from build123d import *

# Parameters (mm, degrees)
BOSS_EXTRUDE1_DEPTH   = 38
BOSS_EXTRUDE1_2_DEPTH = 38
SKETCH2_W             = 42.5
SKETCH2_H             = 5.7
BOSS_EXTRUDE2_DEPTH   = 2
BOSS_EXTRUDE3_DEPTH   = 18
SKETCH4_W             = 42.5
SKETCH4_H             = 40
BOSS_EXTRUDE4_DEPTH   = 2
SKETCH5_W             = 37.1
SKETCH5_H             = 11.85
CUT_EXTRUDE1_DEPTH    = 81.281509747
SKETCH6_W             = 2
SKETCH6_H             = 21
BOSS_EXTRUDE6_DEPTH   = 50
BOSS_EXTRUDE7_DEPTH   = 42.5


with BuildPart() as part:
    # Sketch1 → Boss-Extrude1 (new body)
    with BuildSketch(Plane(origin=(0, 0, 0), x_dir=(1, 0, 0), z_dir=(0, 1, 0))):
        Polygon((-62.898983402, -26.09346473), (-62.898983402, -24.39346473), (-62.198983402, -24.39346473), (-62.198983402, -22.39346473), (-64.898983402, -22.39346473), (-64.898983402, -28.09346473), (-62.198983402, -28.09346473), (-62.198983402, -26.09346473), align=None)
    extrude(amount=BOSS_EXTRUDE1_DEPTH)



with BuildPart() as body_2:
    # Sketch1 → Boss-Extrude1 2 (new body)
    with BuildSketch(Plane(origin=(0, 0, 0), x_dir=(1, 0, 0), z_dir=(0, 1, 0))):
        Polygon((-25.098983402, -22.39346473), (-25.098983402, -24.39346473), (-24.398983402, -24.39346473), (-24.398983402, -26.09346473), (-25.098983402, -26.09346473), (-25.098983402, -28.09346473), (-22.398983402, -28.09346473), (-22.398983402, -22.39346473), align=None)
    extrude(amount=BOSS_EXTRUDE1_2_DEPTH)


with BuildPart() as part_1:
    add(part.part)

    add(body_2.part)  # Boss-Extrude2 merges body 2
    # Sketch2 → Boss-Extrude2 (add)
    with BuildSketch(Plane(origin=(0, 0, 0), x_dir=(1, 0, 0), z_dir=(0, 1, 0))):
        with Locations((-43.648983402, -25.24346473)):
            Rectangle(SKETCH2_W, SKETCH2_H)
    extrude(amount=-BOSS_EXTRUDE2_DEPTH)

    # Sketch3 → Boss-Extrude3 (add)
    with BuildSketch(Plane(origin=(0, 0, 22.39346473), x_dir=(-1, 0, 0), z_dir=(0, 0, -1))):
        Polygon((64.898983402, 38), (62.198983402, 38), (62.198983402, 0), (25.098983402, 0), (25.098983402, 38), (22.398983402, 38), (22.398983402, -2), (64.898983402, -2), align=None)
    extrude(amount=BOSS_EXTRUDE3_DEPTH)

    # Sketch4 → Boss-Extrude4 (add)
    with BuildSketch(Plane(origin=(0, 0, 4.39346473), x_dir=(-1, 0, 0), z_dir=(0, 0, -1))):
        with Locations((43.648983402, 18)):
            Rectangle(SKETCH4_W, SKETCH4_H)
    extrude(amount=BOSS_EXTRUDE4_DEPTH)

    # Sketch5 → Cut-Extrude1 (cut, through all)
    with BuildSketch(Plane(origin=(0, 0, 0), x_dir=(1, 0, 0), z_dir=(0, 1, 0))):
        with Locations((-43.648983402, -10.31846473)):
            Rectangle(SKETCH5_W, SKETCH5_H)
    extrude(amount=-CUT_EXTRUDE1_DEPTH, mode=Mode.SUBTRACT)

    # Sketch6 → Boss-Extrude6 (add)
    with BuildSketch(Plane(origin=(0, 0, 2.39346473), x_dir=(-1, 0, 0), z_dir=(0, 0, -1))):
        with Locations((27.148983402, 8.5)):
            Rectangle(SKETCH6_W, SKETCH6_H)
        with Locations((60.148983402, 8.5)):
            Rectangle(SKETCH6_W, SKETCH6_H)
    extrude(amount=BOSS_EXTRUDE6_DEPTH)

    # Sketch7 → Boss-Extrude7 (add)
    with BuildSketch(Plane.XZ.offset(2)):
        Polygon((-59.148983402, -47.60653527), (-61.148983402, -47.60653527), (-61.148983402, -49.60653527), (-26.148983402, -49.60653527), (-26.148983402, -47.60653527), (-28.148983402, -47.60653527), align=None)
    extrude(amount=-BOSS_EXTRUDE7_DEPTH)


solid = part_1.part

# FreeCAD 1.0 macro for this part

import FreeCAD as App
import Part
import Sketcher
from FreeCAD import Vector


def add_polygon(sketch, points):
    """Adds a closed chain of lines whose ends are joined by coincident constraints."""
    first, n = sketch.GeometryCount, len(points)
    for a, b in zip(points, points[1:] + points[:1]):
        sketch.addGeometry(Part.LineSegment(App.Vector(*a, 0), App.Vector(*b, 0)), False)
    for i in range(n):
        sketch.addConstraint(Sketcher.Constraint("Coincident", first + i, 2, first + (i + 1) % n, 1))

doc = App.newDocument("Part")
body = doc.addObject("PartDesign::Body", "Body")

# Sketch on XZ plane
sketch1 = body.newObject("Sketcher::SketchObject", "Sketch")
sketch1.AttachmentSupport = (doc.getObject("XZ_Plane"), [""])
sketch1.MapMode = "FlatFace"
add_polygon(sketch1, [(-62.9, 26.1), (-62.9, 24.4), (-62.2, 24.4), (-62.2, 22.4), (-64.9, 22.4), (-64.9, 28.1), (-62.2, 28.1), (-62.2, 26.1)])  # lines 0-7
sketch1.addConstraint([
    Sketcher.Constraint("Vertical", 0),
    Sketcher.Constraint("Horizontal", 1),
    Sketcher.Constraint("Vertical", 2),
    Sketcher.Constraint("Horizontal", 3),
    Sketcher.Constraint("Vertical", 4),
    Sketcher.Constraint("Horizontal", 5),
    Sketcher.Constraint("Vertical", 6),
    Sketcher.Constraint("Horizontal", 7),
    Sketcher.Constraint("Vertical", 2, 2, 5, 2),
    Sketcher.Constraint("Equal", 2, 6),
    Sketcher.Constraint("DistanceY", 2, 2, 2, 1, 2.0),
    Sketcher.Constraint("DistanceX", 1, 1, 1, 2, 0.7),
    Sketcher.Constraint("DistanceX", 3, 2, 3, 1, 2.7),
    Sketcher.Constraint("DistanceY", 0, 2, 0, 1, 1.7),
    Sketcher.Constraint("DistanceX", 0, 2, -1, 1, 62.898983),
    Sketcher.Constraint("DistanceY", -1, 1, 0, 2, 24.393465),
])
pad1 = body.newObject("PartDesign::Pad", "Pad")
pad1.Profile = sketch1
pad1.Length = 38
pad1.Reversed = True
body2 = doc.addObject("PartDesign::Body", "Body001")

# Sketch on XZ plane
sketch2 = body2.newObject("Sketcher::SketchObject", "Sketch001")
sketch2.AttachmentSupport = (doc.getObject("XZ_Plane001"), [""])
sketch2.MapMode = "FlatFace"
add_polygon(sketch2, [(-25.1, 22.4), (-25.1, 24.4), (-24.4, 24.4), (-24.4, 26.1), (-25.1, 26.1), (-25.1, 28.1), (-22.4, 28.1), (-22.4, 22.4)])  # lines 0-7
sketch2.addConstraint([
    Sketcher.Constraint("Vertical", 0),
    Sketcher.Constraint("Horizontal", 1),
    Sketcher.Constraint("Vertical", 2),
    Sketcher.Constraint("Horizontal", 3),
    Sketcher.Constraint("Vertical", 4),
    Sketcher.Constraint("Horizontal", 5),
    Sketcher.Constraint("Vertical", 6),
    Sketcher.Constraint("Horizontal", 7),
    Sketcher.Constraint("Vertical", 0, 2, 3, 2),
    Sketcher.Constraint("Equal", 0, 4),
    Sketcher.Constraint("DistanceY", 0, 1, 0, 2, 2.0),
    Sketcher.Constraint("DistanceX", 1, 1, 1, 2, 0.7),
    Sketcher.Constraint("DistanceX", 5, 1, 5, 2, 2.7),
    Sketcher.Constraint("DistanceY", 2, 1, 2, 2, 1.7),
    Sketcher.Constraint("DistanceX", 0, 2, -1, 1, 25.098983),
    Sketcher.Constraint("DistanceY", -1, 1, 0, 2, 24.393465),
])
pad2 = body2.newObject("PartDesign::Pad", "Pad001")
pad2.Profile = sketch2
pad2.Length = 38
pad2.Reversed = True
body.AllowCompound = True
doc.recompute()

boolean = body.newObject("PartDesign::Boolean", "Boolean")
boolean.Type = "Fuse"
boolean.addObjects([body2])

# Sketch on XZ plane
sketch3 = body.newObject("Sketcher::SketchObject", "Sketch002")
sketch3.AttachmentSupport = (doc.getObject("XZ_Plane"), [""])
sketch3.MapMode = "FlatFace"
add_polygon(sketch3, [(-65, 22), (-65, 28), (-22, 28), (-22, 22)])  # lines 0-3
sketch3.addConstraint([
    Sketcher.Constraint("Vertical", 0),
    Sketcher.Constraint("Horizontal", 1),
    Sketcher.Constraint("Vertical", 2),
    Sketcher.Constraint("Horizontal", 3),
    Sketcher.Constraint("DistanceX", 1, 1, 1, 2, 42.5),
    Sketcher.Constraint("DistanceY", 0, 1, 0, 2, 5.7),
    Sketcher.Constraint("DistanceX", 0, 2, -1, 1, 64.898983),
    Sketcher.Constraint("DistanceY", -1, 1, 0, 2, 28.093465),
])
pad3 = body.newObject("PartDesign::Pad", "Pad002")
pad3.Profile = sketch3
pad3.Length = 2

# Sketch on XY plane
sketch4 = body.newObject("Sketcher::SketchObject", "Sketch003")
sketch4.AttachmentSupport = (doc.getObject("XY_Plane"), [""])
sketch4.MapMode = "FlatFace"
sketch4.AttachmentOffset = App.Placement(Vector(0, 0, 22.393465), App.Rotation())
add_polygon(sketch4, [(-64.9, 38), (-62.2, 38), (-62.2, 0), (-25.1, 0), (-25.1, 38), (-22.4, 38), (-22.4, -2), (-64.9, -2)])  # lines 0-7
sketch4.addConstraint([
    Sketcher.Constraint("Horizontal", 0),
    Sketcher.Constraint("Vertical", 1),
    Sketcher.Constraint("Horizontal", 2),
    Sketcher.Constraint("Vertical", 3),
    Sketcher.Constraint("Horizontal", 4),
    Sketcher.Constraint("Vertical", 5),
    Sketcher.Constraint("Horizontal", 6),
    Sketcher.Constraint("Vertical", 7),
    Sketcher.Constraint("PointOnObject", 1, 2, -1),
    Sketcher.Constraint("Horizontal", 0, 2, 3, 2),
    Sketcher.Constraint("Equal", 0, 4),
    Sketcher.Constraint("DistanceY", 1, 2, 1, 1, 38.0),
    Sketcher.Constraint("DistanceY", 5, 2, 5, 1, 40.0),
    Sketcher.Constraint("DistanceX", 0, 1, 0, 2, 2.7),
    Sketcher.Constraint("DistanceX", 2, 1, 2, 2, 37.1),
    Sketcher.Constraint("DistanceX", 0, 2, -1, 1, 62.198983),
])
pad4 = body.newObject("PartDesign::Pad", "Pad003")
pad4.Profile = sketch4
pad4.Length = 18
pad4.Reversed = True

# Sketch on XY plane
sketch5 = body.newObject("Sketcher::SketchObject", "Sketch004")
sketch5.AttachmentSupport = (doc.getObject("XY_Plane"), [""])
sketch5.MapMode = "FlatFace"
sketch5.AttachmentOffset = App.Placement(Vector(0, 0, 4.393465), App.Rotation())
add_polygon(sketch5, [(-22, 38), (-22, -2), (-65, -2), (-65, 38)])  # lines 0-3
sketch5.addConstraint([
    Sketcher.Constraint("Vertical", 0),
    Sketcher.Constraint("Horizontal", 1),
    Sketcher.Constraint("Vertical", 2),
    Sketcher.Constraint("Horizontal", 3),
    Sketcher.Constraint("DistanceY", 0, 2, 0, 1, 40.0),
    Sketcher.Constraint("DistanceX", 1, 2, 1, 1, 42.5),
    Sketcher.Constraint("DistanceY", 0, 2, -1, 1, 2.0),
    Sketcher.Constraint("DistanceX", 0, 2, -1, 1, 22.398983),
])
pad5 = body.newObject("PartDesign::Pad", "Pad004")
pad5.Profile = sketch5
pad5.Length = 2
pad5.Reversed = True

# Sketch on XZ plane
sketch6 = body.newObject("Sketcher::SketchObject", "Sketch005")
sketch6.AttachmentSupport = (doc.getObject("XZ_Plane"), [""])
sketch6.MapMode = "FlatFace"
add_polygon(sketch6, [(-62, 4), (-62, 16), (-25, 16), (-25, 4)])  # lines 0-3
sketch6.addConstraint([
    Sketcher.Constraint("Vertical", 0),
    Sketcher.Constraint("Horizontal", 1),
    Sketcher.Constraint("Vertical", 2),
    Sketcher.Constraint("Horizontal", 3),
    Sketcher.Constraint("DistanceX", 1, 1, 1, 2, 37.1),
    Sketcher.Constraint("DistanceY", 0, 1, 0, 2, 11.85),
    Sketcher.Constraint("DistanceX", 0, 2, -1, 1, 62.198983),
    Sketcher.Constraint("DistanceY", -1, 1, 0, 2, 16.243465),
])
pocket1 = body.newObject("PartDesign::Pocket", "Pocket")
pocket1.Profile = sketch6
pocket1.Type = "ThroughAll"
pocket1.Reversed = True

# Sketch on XY plane
sketch7 = body.newObject("Sketcher::SketchObject", "Sketch006")
sketch7.AttachmentSupport = (doc.getObject("XY_Plane"), [""])
sketch7.MapMode = "FlatFace"
sketch7.AttachmentOffset = App.Placement(Vector(0, 0, 2.393465), App.Rotation())
add_polygon(sketch7, [(-26.1, 19), (-26.1, -2), (-28.1, -2), (-28.1, 19)])  # lines 0-3
add_polygon(sketch7, [(-59.1, 19), (-59.1, -2), (-61.1, -2), (-61.1, 19)])  # lines 4-7
sketch7.addConstraint([
    Sketcher.Constraint("Vertical", 0),
    Sketcher.Constraint("Horizontal", 1),
    Sketcher.Constraint("Vertical", 2),
    Sketcher.Constraint("Horizontal", 3),
    Sketcher.Constraint("Vertical", 4),
    Sketcher.Constraint("Horizontal", 5),
    Sketcher.Constraint("Vertical", 6),
    Sketcher.Constraint("Horizontal", 7),
    Sketcher.Constraint("Horizontal", 1, 2, 4, 2),
    Sketcher.Constraint("Horizontal", 3, 2, 6, 2),
    Sketcher.Constraint("Equal", 3, 5),
    Sketcher.Constraint("DistanceX", 1, 2, 1, 1, 2.0),
    Sketcher.Constraint("DistanceY", 0, 2, 0, 1, 21.0),
    Sketcher.Constraint("DistanceY", 0, 2, -1, 1, 2.0),
    Sketcher.Constraint("DistanceX", 4, 2, 1, 2, 31.0),
    Sketcher.Constraint("DistanceX", 0, 2, -1, 1, 26.148983),
])
pad6 = body.newObject("PartDesign::Pad", "Pad005")
pad6.Profile = sketch7
pad6.Length = 50
pad6.Reversed = True

# Sketch on XZ plane
sketch8 = body.newObject("Sketcher::SketchObject", "Sketch007")
sketch8.AttachmentSupport = (doc.getObject("XZ_Plane"), [""])
sketch8.MapMode = "FlatFace"
sketch8.AttachmentOffset = App.Placement(Vector(0, 0, 2), App.Rotation())
add_polygon(sketch8, [(-61.1, -47.6), (-61.1, -49.6), (-26.1, -49.6), (-26.1, -47.6)])  # lines 0-3
sketch8.addConstraint([
    Sketcher.Constraint("Vertical", 0),
    Sketcher.Constraint("Horizontal", 1),
    Sketcher.Constraint("Vertical", 2),
    Sketcher.Constraint("Horizontal", 3),
    Sketcher.Constraint("DistanceX", 1, 1, 1, 2, 35.0),
    Sketcher.Constraint("DistanceY", 0, 2, 0, 1, 2.0),
    Sketcher.Constraint("DistanceX", 0, 2, -1, 1, 61.148983),
    Sketcher.Constraint("DistanceY", 0, 2, -1, 1, 49.606535),
])
pad7 = body.newObject("PartDesign::Pad", "Pad006")
pad7.Profile = sketch8
pad7.Length = 42.5
pad7.Reversed = True

doc.recompute()
